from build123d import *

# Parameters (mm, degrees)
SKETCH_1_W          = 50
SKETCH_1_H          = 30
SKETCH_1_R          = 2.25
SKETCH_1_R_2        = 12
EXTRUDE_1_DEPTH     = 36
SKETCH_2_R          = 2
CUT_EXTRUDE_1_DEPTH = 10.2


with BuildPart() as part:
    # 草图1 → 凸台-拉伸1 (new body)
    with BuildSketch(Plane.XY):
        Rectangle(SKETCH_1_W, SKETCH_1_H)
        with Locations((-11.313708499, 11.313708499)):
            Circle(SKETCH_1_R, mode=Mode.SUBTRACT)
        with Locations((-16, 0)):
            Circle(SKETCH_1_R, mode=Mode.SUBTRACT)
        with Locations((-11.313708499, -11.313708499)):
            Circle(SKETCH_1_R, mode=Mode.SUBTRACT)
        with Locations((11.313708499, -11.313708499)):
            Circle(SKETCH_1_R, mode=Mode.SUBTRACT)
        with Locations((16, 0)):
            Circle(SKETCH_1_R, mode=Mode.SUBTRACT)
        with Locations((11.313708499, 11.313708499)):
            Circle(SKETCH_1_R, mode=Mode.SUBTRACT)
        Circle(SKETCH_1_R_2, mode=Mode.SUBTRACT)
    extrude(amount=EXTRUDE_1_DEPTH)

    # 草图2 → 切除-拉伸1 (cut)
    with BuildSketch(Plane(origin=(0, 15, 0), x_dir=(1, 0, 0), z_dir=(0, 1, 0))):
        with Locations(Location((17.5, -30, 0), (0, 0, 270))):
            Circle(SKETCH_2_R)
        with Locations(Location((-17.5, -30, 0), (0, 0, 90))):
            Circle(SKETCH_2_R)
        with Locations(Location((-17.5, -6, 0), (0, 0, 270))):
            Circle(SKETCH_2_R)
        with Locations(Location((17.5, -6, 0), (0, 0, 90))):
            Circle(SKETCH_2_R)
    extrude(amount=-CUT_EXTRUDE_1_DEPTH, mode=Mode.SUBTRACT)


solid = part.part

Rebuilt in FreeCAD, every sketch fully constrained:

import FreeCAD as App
import Part
import Sketcher

V = App.Vector


def add_polygon(sketch, points):
    """Adds a closed chain of lines whose ends are joined by coincident constraints."""
    first, n = sketch.GeometryCount, len(points)
    for a, b in zip(points, points[1:] + points[:1]):
        sketch.addGeometry(Part.LineSegment(App.Vector(*a, 0), App.Vector(*b, 0)), False)
    for i in range(n):
        sketch.addConstraint(Sketcher.Constraint("Coincident", first + i, 2, first + (i + 1) % n, 1))

doc = App.newDocument("Part")
params = doc.addObject("Spreadsheet::Sheet", "Params")
for row, (alias, value) in enumerate([
    ("sketch1_diameter", "24 mm"),
    ("sketch1_diameter2", "4.5 mm"),
    ("sketch1_width", "50 mm"),
    ("sketch1_height", "30 mm"),
    ("pad1_length", "36 mm"),
    ("sketch2_diameter", "4 mm"),
    ("pocket1_length", "10.2 mm"),
], start=1):
    params.set(f"A{row}", alias)
    params.set(f"B{row}", "=" + value)
    params.setAlias(f"B{row}", alias)

body = doc.addObject("PartDesign::Body", "Body")

# Sketch on XY plane
sketch1 = body.newObject("Sketcher::SketchObject", "Sketch")
sketch1.AttachmentSupport = (doc.getObject("XY_Plane"), [""])
sketch1.MapMode = "FlatFace"
add_polygon(sketch1, [(-25, 15), (-25, -15), (25, -15), (25, 15)])  # lines 0-3
sketch1.addGeometry(Part.Circle(V(-11.3, -11.3, 0), V(0, 0, 1), 2.2), False)  # 4
sketch1.addGeometry(Part.Circle(V(-16, 0, 0), V(0, 0, 1), 2.2), False)  # 5
sketch1.addGeometry(Part.Circle(V(11.3, -11.3, 0), V(0, 0, 1), 2.2), False)  # 6
sketch1.addGeometry(Part.Circle(V(0, 0, 0), V(0, 0, 1), 12), False)  # 7
sketch1.addGeometry(Part.Circle(V(16, 0, 0), V(0, 0, 1), 2.2), False)  # 8
sketch1.addGeometry(Part.Circle(V(-11.3, 11.3, 0), V(0, 0, 1), 2.2), False)  # 9
sketch1.addGeometry(Part.Circle(V(11.3, 11.3, 0), V(0, 0, 1), 2.2), False)  # 10
sketch1.addConstraint([
    Sketcher.Constraint("Vertical", 0),
    Sketcher.Constraint("Horizontal", 1),
    Sketcher.Constraint("Vertical", 2),
    Sketcher.Constraint("Horizontal", 3),
    Sketcher.Constraint("Coincident", 7, 3, -1, 1),
    Sketcher.Constraint("Equal", 4, 5),
    Sketcher.Constraint("Equal", 5, 6),
    Sketcher.Constraint("Equal", 6, 8),
    Sketcher.Constraint("Equal", 8, 9),
    Sketcher.Constraint("Equal", 9, 10),
    Sketcher.Constraint("Symmetric", 5, 3, 8, 3, -1, 1),
    Sketcher.Constraint("Symmetric", 6, 3, 9, 3, -1, 1),
    Sketcher.Constraint("Symmetric", 4, 3, 10, 3, -1, 1),
    Sketcher.Constraint("Symmetric", 0, 2, 2, 2, -1, 1),
    Sketcher.Constraint("Symmetric", 4, 3, 6, 3, -2),
    Sketcher.Constraint("PointOnObject", 5, 3, -1),
    Sketcher.Constraint("Diameter", 7, 24.0),
    Sketcher.Constraint("Diameter", 4, 4.5),
    Sketcher.Constraint("DistanceX", 1, 1, 1, 2, 50.0),
    Sketcher.Constraint("DistanceY", 0, 2, 0, 1, 30.0),
    Sketcher.Constraint("DistanceX", 5, 3, -1, 1, 16.0),
    Sketcher.Constraint("DistanceX", 4, 3, -1, 1, 11.313708),
    Sketcher.Constraint("DistanceY", 4, 3, -1, 1, 11.313708),
])
sketch1.setExpression("Constraints[20]", "Params.sketch1_diameter")
sketch1.setExpression("Constraints[21]", "Params.sketch1_diameter2")
sketch1.setExpression("Constraints[22]", "Params.sketch1_width")
sketch1.setExpression("Constraints[23]", "Params.sketch1_height")
pad1 = body.newObject("PartDesign::Pad", "Pad")
pad1.Profile = sketch1
pad1.setExpression("Length", "Params.pad1_length")

# Sketch on XZ plane
sketch2 = body.newObject("Sketcher::SketchObject", "Sketch001")
sketch2.AttachmentSupport = (doc.getObject("XZ_Plane"), [""])
sketch2.MapMode = "FlatFace"
sketch2.AttachmentOffset = App.Placement(V(0, 0, -15), App.Rotation())
sketch2.addGeometry([
    Part.Circle(V(17.5, 30, 0), V(0, 0, 1), 2),
    Part.Circle(V(-17.5, 30, 0), V(0, 0, 1), 2),
    Part.Circle(V(-17.5, 6, 0), V(0, 0, 1), 2),
    Part.Circle(V(17.5, 6, 0), V(0, 0, 1), 2),
], False)
sketch2.addConstraint([
    Sketcher.Constraint("Equal", 0, 1),
    Sketcher.Constraint("Equal", 1, 2),
    Sketcher.Constraint("Equal", 2, 3),
    Sketcher.Constraint("Symmetric", 0, 3, 1, 3, -2),
    Sketcher.Constraint("Symmetric", 2, 3, 3, 3, -2),
    Sketcher.Constraint("Vertical", 1, 3, 2, 3),
    Sketcher.Constraint("Diameter", 0, 4.0),
    Sketcher.Constraint("DistanceY", -1, 1, 0, 3, 30.0),
    Sketcher.Constraint("DistanceY", -1, 1, 2, 3, 6.0),
    Sketcher.Constraint("DistanceX", 1, 3, 0, 3, 35.0),
])
sketch2.setExpression("Constraints[6]", "Params.sketch2_diameter")
pocket1 = body.newObject("PartDesign::Pocket", "Pocket")
pocket1.Profile = sketch2
pocket1.setExpression("Length", "Params.pocket1_length")
pocket1.Reversed = True

doc.recompute()
